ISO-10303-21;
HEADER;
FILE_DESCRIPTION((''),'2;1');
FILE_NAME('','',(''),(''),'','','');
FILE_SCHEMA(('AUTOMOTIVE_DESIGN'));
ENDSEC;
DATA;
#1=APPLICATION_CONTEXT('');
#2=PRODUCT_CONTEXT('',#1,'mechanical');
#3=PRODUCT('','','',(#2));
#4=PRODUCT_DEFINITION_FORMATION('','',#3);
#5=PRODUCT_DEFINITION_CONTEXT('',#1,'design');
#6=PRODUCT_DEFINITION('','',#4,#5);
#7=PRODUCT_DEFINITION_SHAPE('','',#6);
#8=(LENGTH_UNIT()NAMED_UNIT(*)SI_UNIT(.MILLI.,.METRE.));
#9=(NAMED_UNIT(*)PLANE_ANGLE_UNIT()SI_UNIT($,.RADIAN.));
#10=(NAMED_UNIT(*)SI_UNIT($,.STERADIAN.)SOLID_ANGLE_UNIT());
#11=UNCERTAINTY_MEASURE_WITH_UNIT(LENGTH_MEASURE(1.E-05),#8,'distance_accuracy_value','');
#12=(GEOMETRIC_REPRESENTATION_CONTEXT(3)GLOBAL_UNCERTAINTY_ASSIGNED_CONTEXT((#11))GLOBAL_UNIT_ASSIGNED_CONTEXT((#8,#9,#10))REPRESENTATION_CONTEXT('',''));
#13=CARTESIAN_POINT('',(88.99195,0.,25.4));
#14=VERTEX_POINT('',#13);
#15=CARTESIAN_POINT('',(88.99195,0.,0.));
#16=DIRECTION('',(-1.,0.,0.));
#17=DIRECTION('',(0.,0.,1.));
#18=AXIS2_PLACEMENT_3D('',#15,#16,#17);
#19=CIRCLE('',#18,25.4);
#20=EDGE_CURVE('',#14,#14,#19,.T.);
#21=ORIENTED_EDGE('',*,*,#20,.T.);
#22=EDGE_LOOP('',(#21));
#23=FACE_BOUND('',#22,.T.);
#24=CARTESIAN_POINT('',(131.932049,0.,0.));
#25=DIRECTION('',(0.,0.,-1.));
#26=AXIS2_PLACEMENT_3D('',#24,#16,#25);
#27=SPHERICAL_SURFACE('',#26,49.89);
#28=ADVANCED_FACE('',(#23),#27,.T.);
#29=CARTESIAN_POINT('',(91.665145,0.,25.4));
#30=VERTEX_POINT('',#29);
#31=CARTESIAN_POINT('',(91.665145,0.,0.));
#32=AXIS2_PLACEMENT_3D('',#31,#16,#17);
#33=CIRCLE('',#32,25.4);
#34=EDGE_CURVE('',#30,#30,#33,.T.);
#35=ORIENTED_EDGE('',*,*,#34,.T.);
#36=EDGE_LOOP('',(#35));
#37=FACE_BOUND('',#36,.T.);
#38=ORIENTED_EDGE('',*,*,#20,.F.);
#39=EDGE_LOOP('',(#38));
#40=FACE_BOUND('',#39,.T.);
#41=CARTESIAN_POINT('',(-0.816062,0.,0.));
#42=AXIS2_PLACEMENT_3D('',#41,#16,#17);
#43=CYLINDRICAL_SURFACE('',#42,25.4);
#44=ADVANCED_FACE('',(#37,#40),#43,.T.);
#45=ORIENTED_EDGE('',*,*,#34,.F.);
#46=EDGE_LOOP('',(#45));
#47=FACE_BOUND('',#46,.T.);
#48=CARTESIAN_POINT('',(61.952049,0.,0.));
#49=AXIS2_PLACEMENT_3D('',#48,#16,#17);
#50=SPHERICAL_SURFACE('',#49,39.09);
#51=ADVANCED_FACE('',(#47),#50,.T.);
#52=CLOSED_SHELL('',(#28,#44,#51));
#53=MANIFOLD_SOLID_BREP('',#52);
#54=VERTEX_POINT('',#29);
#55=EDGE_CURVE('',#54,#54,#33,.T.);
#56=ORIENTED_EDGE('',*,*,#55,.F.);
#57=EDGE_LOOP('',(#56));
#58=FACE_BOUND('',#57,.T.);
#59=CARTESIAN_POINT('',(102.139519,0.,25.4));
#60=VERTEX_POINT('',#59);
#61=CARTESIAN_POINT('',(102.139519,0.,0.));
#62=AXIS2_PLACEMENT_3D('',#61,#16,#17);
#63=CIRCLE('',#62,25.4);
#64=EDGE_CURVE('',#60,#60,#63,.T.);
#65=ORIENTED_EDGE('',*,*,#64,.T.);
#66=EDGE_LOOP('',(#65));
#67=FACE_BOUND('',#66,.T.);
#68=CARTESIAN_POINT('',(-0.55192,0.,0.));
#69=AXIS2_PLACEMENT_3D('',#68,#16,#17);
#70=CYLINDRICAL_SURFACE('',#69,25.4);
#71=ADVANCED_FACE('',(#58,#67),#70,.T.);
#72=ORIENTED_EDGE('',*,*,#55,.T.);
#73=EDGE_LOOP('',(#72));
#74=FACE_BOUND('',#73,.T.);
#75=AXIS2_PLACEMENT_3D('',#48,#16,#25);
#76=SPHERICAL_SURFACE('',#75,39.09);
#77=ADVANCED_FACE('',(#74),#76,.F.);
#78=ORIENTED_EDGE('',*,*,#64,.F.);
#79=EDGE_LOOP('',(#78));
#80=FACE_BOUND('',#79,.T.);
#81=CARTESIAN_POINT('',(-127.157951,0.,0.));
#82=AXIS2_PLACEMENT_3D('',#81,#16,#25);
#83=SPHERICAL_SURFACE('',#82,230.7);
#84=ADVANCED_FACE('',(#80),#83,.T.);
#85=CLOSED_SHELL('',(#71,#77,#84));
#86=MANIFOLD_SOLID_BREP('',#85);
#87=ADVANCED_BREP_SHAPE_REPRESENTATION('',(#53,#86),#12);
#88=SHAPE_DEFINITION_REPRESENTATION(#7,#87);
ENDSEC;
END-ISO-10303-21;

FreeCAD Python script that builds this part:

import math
import FreeCAD as App
import Part
import Sketcher

V = App.Vector

doc = App.newDocument("Part")
body = doc.addObject("PartDesign::Body", "Body")

# Sketch on XZ plane
sketch1 = body.newObject("Sketcher::SketchObject", "Sketch")
sketch1.AttachmentSupport = (doc.getObject("XZ_Plane"), [""])
sketch1.MapMode = "FlatFace"
sketch1.addGeometry(Part.ArcOfCircle(Part.Circle(V(131.9, 0, 0), V(0, 0, 1), 49.9), math.radians(180), math.radians(211)), False)
sketch1.addGeometry(Part.LineSegment(V(82, 0, 0), V(101, 0, 0)), False)
sketch1.addGeometry(Part.ArcOfCircle(Part.Circle(V(62, 0, 0), V(0, 0, 1), 39.1), math.radians(-41), math.radians(0)), False)
sketch1.addGeometry(Part.LineSegment(V(91.7, -25.4, 0), V(89, -25.4, 0)), False)
sketch1.addConstraint(Sketcher.Constraint("Coincident", 0, 1, 1, 1))
sketch1.addConstraint(Sketcher.Constraint("Coincident", 1, 2, 2, 2))
sketch1.addConstraint(Sketcher.Constraint("Coincident", 2, 1, 3, 1))
sketch1.addConstraint(Sketcher.Constraint("Coincident", 3, 2, 0, 2))
sketch1.addConstraint(Sketcher.Constraint("Horizontal", 1))
sketch1.addConstraint(Sketcher.Constraint("Horizontal", 3))
sketch1.addConstraint(Sketcher.Constraint("PointOnObject", 0, 3, -1))
sketch1.addConstraint(Sketcher.Constraint("PointOnObject", 2, 3, -1))
sketch1.addConstraint(Sketcher.Constraint("PointOnObject", 0, 1, -1))
sketch1.addConstraint(Sketcher.Constraint("DistanceX", 1, 1, 1, 2, 19.0))
sketch1.addConstraint(Sketcher.Constraint("Radius", 0, 49.89))
sketch1.addConstraint(Sketcher.Constraint("Radius", 2, 39.09))
sketch1.addConstraint(Sketcher.Constraint("DistanceY", 2, 1, -1, 1, 25.4))
sketch1.addConstraint(Sketcher.Constraint("DistanceX", -1, 1, 0, 3, 131.932049))
revolution = body.newObject("PartDesign::Revolution", "Revolution")
revolution.Profile = sketch1
revolution.ReferenceAxis = (sketch1, ["H_Axis"])
revolution.Angle = 360
body2 = doc.addObject("PartDesign::Body", "Body001")

# Sketch on XZ plane
sketch2 = body2.newObject("Sketcher::SketchObject", "Sketch001")
sketch2.AttachmentSupport = (doc.getObject("XZ_Plane001"), [""])
sketch2.MapMode = "FlatFace"
sketch2.addGeometry(Part.LineSegment(V(102.1, -25.4, 0), V(91.7, -25.4, 0)), False)
sketch2.addGeometry(Part.ArcOfCircle(Part.Circle(V(62, 0, 0), V(0, 0, 1), 39.1), math.radians(-41), math.radians(0)), False)
sketch2.addGeometry(Part.LineSegment(V(101, 0, 0), V(103.5, 0, 0)), False)
sketch2.addGeometry(Part.ArcOfCircle(Part.Circle(V(-127.2, 0, 0), V(0, 0, 1), 230.7), math.radians(-6.32), math.radians(0)), False)
sketch2.addConstraint(Sketcher.Constraint("Coincident", 0, 2, 1, 1))
sketch2.addConstraint(Sketcher.Constraint("Coincident", 1, 2, 2, 1))
sketch2.addConstraint(Sketcher.Constraint("Coincident", 2, 2, 3, 2))
sketch2.addConstraint(Sketcher.Constraint("Coincident", 3, 1, 0, 1))
sketch2.addConstraint(Sketcher.Constraint("Horizontal", 0))
sketch2.addConstraint(Sketcher.Constraint("Horizontal", 2))
sketch2.addConstraint(Sketcher.Constraint("PointOnObject", 1, 3, -1))
sketch2.addConstraint(Sketcher.Constraint("PointOnObject", 3, 3, -1))
sketch2.addConstraint(Sketcher.Constraint("PointOnObject", 1, 2, -1))
sketch2.addConstraint(Sketcher.Constraint("Radius", 3, 230.7))
sketch2.addConstraint(Sketcher.Constraint("Radius", 1, 39.09))
sketch2.addConstraint(Sketcher.Constraint("DistanceX", 2, 1, 2, 2, 2.5))
sketch2.addConstraint(Sketcher.Constraint("DistanceY", 0, 2, -1, 1, 25.4))
sketch2.addConstraint(Sketcher.Constraint("DistanceX", -1, 1, 1, 3, 61.952049))
revolution2 = body2.newObject("PartDesign::Revolution", "Revolution001")
revolution2.Profile = sketch2
revolution2.ReferenceAxis = (sketch2, ["H_Axis"])
revolution2.Angle = 360

doc.recompute()
